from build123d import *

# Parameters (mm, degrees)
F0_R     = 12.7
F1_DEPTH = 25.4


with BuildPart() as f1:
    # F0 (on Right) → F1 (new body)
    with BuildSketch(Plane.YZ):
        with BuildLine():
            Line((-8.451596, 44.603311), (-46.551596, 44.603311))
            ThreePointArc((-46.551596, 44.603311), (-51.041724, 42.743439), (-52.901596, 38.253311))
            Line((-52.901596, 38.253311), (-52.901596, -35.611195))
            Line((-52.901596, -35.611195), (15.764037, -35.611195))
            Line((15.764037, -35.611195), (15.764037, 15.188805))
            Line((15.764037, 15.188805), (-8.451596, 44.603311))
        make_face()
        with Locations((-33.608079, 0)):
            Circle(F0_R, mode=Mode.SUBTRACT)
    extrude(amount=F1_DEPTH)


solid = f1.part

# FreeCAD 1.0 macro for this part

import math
import FreeCAD as App
import Part
import Sketcher
from FreeCAD import Vector
Q = App.Units.Quantity

doc = App.newDocument("Part")
params = doc.addObject("Spreadsheet::Sheet", "Params")
for row, (alias, value) in enumerate([
    ("sketch1_diameter", "1 in"),
    ("sketch1_height", "2 in"),
    ("sketch1_radius", "0.25 in"),
    ("sketch1_width", "1.5 in"),
    ("sketch1_length", "1.5 in"),
    ("pad1_length", "1 in"),
], start=1):
    params.set(f"A{row}", alias)
    params.set(f"B{row}", "=" + value)
    params.setAlias(f"B{row}", alias)

body = doc.addObject("PartDesign::Body", "Body")

# Sketch on YZ plane
sketch1 = body.newObject("Sketcher::SketchObject", "Sketch")
sketch1.AttachmentSupport = (doc.getObject("YZ_Plane"), [""])
sketch1.MapMode = "FlatFace"
sketch1.addGeometry([
    Part.LineSegment(Vector(-8, 45, 0), Vector(-47, 45, 0)),  # 0
    Part.ArcOfCircle(Part.Circle(Vector(-47, 38, 0), Vector(0, 0, 1), 6), math.radians(90), math.radians(180)),  # 1
    Part.LineSegment(Vector(-53, 38, 0), Vector(-53, -36, 0)),  # 2
    Part.LineSegment(Vector(-53, -36, 0), Vector(16, -36, 0)),  # 3
    Part.LineSegment(Vector(16, -36, 0), Vector(16, 15, 0)),  # 4
    Part.LineSegment(Vector(16, 15, 0), Vector(-8, 45, 0)),  # 5
    Part.Circle(Vector(-34, 0, 0), Vector(0, 0, 1), 13),  # 6
], False)
sketch1.addConstraint([
    Sketcher.Constraint("Tangent", 0, 2, 1, 1),
    Sketcher.Constraint("Tangent", 1, 2, 2, 1),
    Sketcher.Constraint("Coincident", 2, 2, 3, 1),
    Sketcher.Constraint("Coincident", 3, 2, 4, 1),
    Sketcher.Constraint("Coincident", 4, 2, 5, 1),
    Sketcher.Constraint("Coincident", 5, 2, 0, 1),
    Sketcher.Constraint("Horizontal", 0),
    Sketcher.Constraint("Vertical", 2),
    Sketcher.Constraint("Horizontal", 3),
    Sketcher.Constraint("Vertical", 4),
    Sketcher.Constraint("PointOnObject", 6, 3, -1),
    Sketcher.Constraint("Diameter", 6, Q("1 in")),
    Sketcher.Constraint("DistanceY", 4, 1, 4, 2, Q("2 in")),
    Sketcher.Constraint("Radius", 1, Q("0.25 in")),
    Sketcher.Constraint("DistanceX", 0, 2, 0, 1, Q("1.5 in")),
    Sketcher.Constraint("Distance", 5, Q("1.5 in")),
    Sketcher.Constraint("DistanceX", 3, 1, 3, 2, 68.665633),
    Sketcher.Constraint("DistanceY", -1, 1, 1, 3, 38.253311),
    Sketcher.Constraint("DistanceX", 6, 3, -1, 1, 33.608079),
    Sketcher.Constraint("DistanceX", 1, 3, -1, 1, 46.551596),
])
sketch1.setExpression("Constraints[11]", "Params.sketch1_diameter")
sketch1.setExpression("Constraints[12]", "Params.sketch1_height")
sketch1.setExpression("Constraints[13]", "Params.sketch1_radius")
sketch1.setExpression("Constraints[14]", "Params.sketch1_width")
sketch1.setExpression("Constraints[15]", "Params.sketch1_length")
pad1 = body.newObject("PartDesign::Pad", "Pad")
pad1.Profile = sketch1
pad1.setExpression("Length", "Params.pad1_length")

doc.recompute()
